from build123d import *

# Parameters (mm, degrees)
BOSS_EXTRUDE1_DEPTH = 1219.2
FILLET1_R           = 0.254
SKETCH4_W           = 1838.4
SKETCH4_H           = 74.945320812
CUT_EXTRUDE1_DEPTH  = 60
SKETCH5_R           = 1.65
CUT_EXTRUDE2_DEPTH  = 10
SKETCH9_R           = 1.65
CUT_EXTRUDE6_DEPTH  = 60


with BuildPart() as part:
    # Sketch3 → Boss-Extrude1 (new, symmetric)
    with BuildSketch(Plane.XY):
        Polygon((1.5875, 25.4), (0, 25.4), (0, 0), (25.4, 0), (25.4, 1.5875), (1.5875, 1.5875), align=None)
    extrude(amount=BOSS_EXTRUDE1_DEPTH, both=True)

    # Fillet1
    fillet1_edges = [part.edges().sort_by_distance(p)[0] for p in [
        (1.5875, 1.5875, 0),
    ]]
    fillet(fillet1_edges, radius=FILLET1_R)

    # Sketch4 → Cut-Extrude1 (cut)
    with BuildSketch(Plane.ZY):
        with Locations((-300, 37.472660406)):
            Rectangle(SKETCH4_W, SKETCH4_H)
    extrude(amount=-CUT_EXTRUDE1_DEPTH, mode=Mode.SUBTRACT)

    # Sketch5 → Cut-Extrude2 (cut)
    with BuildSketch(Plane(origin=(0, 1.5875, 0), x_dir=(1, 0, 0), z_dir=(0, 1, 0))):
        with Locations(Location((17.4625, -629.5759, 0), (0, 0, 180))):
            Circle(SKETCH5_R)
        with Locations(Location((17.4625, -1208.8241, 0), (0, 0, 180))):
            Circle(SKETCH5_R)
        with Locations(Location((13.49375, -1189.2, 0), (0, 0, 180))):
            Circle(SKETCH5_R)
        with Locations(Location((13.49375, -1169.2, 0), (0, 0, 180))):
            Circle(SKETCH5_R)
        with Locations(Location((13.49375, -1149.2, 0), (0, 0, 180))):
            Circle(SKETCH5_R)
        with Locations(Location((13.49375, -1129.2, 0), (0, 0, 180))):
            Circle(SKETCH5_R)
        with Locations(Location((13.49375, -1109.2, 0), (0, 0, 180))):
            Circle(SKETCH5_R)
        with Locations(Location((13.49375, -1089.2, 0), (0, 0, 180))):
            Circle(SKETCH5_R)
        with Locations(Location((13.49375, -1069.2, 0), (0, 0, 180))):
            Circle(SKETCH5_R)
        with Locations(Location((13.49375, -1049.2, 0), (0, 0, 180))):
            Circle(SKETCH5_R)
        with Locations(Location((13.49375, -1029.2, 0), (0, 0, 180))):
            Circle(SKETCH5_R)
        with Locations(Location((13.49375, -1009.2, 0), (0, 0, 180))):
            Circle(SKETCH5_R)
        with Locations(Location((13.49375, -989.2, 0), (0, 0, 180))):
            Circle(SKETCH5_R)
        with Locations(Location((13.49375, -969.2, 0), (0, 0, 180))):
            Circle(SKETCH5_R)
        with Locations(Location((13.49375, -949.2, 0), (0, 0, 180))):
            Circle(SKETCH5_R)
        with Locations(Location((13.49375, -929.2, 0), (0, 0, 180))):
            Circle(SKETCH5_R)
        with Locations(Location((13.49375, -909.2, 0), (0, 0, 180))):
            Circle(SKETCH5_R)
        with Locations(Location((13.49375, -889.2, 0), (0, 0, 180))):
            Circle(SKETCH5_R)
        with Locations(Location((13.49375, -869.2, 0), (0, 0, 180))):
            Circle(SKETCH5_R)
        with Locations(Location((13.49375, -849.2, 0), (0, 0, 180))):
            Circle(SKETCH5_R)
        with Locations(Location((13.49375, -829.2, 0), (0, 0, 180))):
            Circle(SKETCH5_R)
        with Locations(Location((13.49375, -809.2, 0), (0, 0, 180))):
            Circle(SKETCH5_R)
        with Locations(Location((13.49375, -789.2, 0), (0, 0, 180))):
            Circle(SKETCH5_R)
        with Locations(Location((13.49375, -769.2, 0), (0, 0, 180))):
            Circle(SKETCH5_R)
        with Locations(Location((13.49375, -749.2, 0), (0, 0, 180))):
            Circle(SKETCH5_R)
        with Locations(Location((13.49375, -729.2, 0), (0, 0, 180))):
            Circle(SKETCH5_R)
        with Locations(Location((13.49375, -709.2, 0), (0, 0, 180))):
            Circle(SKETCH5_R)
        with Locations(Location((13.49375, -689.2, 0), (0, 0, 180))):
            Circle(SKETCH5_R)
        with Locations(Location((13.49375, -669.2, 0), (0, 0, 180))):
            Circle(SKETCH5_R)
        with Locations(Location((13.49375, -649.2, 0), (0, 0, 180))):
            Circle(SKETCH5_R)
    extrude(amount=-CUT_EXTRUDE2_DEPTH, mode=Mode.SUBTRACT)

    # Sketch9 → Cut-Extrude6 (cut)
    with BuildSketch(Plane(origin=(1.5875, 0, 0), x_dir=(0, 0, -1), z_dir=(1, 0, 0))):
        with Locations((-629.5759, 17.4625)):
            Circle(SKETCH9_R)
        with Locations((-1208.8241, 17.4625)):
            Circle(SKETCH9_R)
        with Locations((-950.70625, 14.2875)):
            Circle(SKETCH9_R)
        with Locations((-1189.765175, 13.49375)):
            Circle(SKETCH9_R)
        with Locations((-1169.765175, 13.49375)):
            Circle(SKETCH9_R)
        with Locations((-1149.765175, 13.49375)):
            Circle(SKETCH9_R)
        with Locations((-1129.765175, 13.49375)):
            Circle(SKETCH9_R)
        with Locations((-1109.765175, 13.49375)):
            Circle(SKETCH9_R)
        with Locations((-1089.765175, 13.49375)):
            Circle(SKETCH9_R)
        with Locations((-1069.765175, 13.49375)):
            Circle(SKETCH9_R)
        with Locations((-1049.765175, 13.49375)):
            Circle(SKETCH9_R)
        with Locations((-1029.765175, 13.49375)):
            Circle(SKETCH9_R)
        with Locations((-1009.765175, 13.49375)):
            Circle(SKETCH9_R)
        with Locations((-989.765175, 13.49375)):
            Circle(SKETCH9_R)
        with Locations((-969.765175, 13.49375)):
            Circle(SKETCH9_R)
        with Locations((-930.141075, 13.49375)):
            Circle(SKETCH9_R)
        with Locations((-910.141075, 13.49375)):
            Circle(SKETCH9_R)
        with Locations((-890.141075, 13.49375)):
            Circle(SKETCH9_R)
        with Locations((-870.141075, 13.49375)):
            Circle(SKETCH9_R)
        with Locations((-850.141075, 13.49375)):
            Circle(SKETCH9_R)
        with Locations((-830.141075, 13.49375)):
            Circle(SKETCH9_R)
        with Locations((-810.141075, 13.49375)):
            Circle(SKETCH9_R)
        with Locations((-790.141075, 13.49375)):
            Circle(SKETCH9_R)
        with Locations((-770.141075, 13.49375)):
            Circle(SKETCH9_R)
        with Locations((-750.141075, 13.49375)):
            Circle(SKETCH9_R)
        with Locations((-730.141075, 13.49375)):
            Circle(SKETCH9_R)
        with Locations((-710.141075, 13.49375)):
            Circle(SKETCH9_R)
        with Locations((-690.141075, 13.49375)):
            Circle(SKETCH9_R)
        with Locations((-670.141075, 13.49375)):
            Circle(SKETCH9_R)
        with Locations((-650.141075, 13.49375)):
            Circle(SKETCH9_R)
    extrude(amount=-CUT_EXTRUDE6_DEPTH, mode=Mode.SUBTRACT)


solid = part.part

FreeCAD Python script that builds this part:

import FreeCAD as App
import Part
import Sketcher
Q = App.Units.Quantity


def edges_at(feature, points):
    """Names of the edges that pass closest to the given points."""
    edges = feature.Shape.Edges
    near = lambda p: min(range(len(edges)), key=lambda i: edges[i].distToShape(Part.Vertex(*p))[0])
    return sorted({f"Edge{near(p) + 1}" for p in points})


def add_polygon(sketch, points):
    """Adds a closed chain of lines whose ends are joined by coincident constraints."""
    first, n = sketch.GeometryCount, len(points)
    for a, b in zip(points, points[1:] + points[:1]):
        sketch.addGeometry(Part.LineSegment(App.Vector(*a, 0), App.Vector(*b, 0)), False)
    for i in range(n):
        sketch.addConstraint(Sketcher.Constraint("Coincident", first + i, 2, first + (i + 1) % n, 1))

doc = App.newDocument("Part")
body = doc.addObject("PartDesign::Body", "Body")

# Sketch on XY plane
sketch1 = body.newObject("Sketcher::SketchObject", "Sketch")
sketch1.AttachmentSupport = (doc.getObject("XY_Plane"), [""])
sketch1.MapMode = "FlatFace"
add_polygon(sketch1, [(1.6, 25.4), (0, 25.4), (0, 0), (25.4, 0), (25.4, 1.6), (1.6, 1.6)])  # lines 0-5
sketch1.addConstraint([
    Sketcher.Constraint("Horizontal", 0),
    Sketcher.Constraint("Vertical", 1),
    Sketcher.Constraint("Horizontal", 2),
    Sketcher.Constraint("Vertical", 3),
    Sketcher.Constraint("Horizontal", 4),
    Sketcher.Constraint("Vertical", 5),
    Sketcher.Constraint("Coincident", 1, 2, -1, 1),
    Sketcher.Constraint("Equal", 2, 1),
    Sketcher.Constraint("Equal", 0, 3),
    Sketcher.Constraint("DistanceX", 2, 1, 2, 2, Q("1 in")),
    Sketcher.Constraint("DistanceX", 0, 2, 0, 1, Q("0.0625 in")),
])
pad1 = body.newObject("PartDesign::Pad", "Pad")
pad1.Profile = sketch1
pad1.Length = Q("96 in")
pad1.Midplane = True
doc.recompute()

fillet = body.newObject("PartDesign::Fillet", "Fillet")
fillet.Base = (pad1, edges_at(pad1, [(1.587, 1.587, 0)]))
fillet.Radius = Q("0.01 in")

# Sketch on YZ plane
sketch2 = body.newObject("Sketcher::SketchObject", "Sketch001")
sketch2.AttachmentSupport = (doc.getObject("YZ_Plane"), [""])
sketch2.MapMode = "FlatFace"
add_polygon(sketch2, [(75, -1219), (0, -1219), (0, 619), (75, 619)])  # lines 0-3
sketch2.addConstraint([
    Sketcher.Constraint("Horizontal", 0),
    Sketcher.Constraint("Vertical", 1),
    Sketcher.Constraint("Horizontal", 2),
    Sketcher.Constraint("Vertical", 3),
    Sketcher.Constraint("PointOnObject", 0, 2, -2),
    Sketcher.Constraint("DistanceY", 0, 2, -1, 1, Q("48 in")),
    Sketcher.Constraint("DistanceY", 1, 1, 1, 2, Q("1838.4 mm")),
    Sketcher.Constraint("DistanceX", 0, 2, 0, 1, Q("74.945321 mm")),
])
pocket1 = body.newObject("PartDesign::Pocket", "Pocket")
pocket1.Profile = sketch2
pocket1.Length = 60
pocket1.Reversed = True

# Sketch on XZ plane
sketch3 = body.newObject("Sketcher::SketchObject", "Sketch002")
sketch3.AttachmentSupport = (doc.getObject("XZ_Plane"), [""])
sketch3.MapMode = "FlatFace"
sketch3.AttachmentOffset = App.Placement(App.Vector(0, 0, -0.0625 * 25.4), App.Rotation())
sketch3.addGeometry([
    Part.Circle(App.Vector(17.5, 629.6, 0), App.Vector(0, 0, 1), 1.6),  # 0
    Part.Circle(App.Vector(17.5, 1208.8, 0), App.Vector(0, 0, 1), 1.6),  # 1
    Part.Circle(App.Vector(13.5, 1189.2, 0), App.Vector(0, 0, 1), 1.6),  # 2
    Part.Circle(App.Vector(13.5, 1169.2, 0), App.Vector(0, 0, 1), 1.6),  # 3
    Part.Circle(App.Vector(13.5, 1149.2, 0), App.Vector(0, 0, 1), 1.6),  # 4
    Part.Circle(App.Vector(13.5, 1129.2, 0), App.Vector(0, 0, 1), 1.6),  # 5
    Part.Circle(App.Vector(13.5, 1109.2, 0), App.Vector(0, 0, 1), 1.6),  # 6
    Part.Circle(App.Vector(13.5, 1089.2, 0), App.Vector(0, 0, 1), 1.6),  # 7
    Part.Circle(App.Vector(13.5, 1069.2, 0), App.Vector(0, 0, 1), 1.6),  # 8
    Part.Circle(App.Vector(13.5, 1049.2, 0), App.Vector(0, 0, 1), 1.6),  # 9
    Part.Circle(App.Vector(13.5, 1029.2, 0), App.Vector(0, 0, 1), 1.6),  # 10
    Part.Circle(App.Vector(13.5, 1009.2, 0), App.Vector(0, 0, 1), 1.6),  # 11
    Part.Circle(App.Vector(13.5, 989.2, 0), App.Vector(0, 0, 1), 1.6),  # 12
    Part.Circle(App.Vector(13.5, 969.2, 0), App.Vector(0, 0, 1), 1.6),  # 13
    Part.Circle(App.Vector(13.5, 949.2, 0), App.Vector(0, 0, 1), 1.6),  # 14
    Part.Circle(App.Vector(13.5, 929.2, 0), App.Vector(0, 0, 1), 1.6),  # 15
    Part.Circle(App.Vector(13.5, 909.2, 0), App.Vector(0, 0, 1), 1.6),  # 16
    Part.Circle(App.Vector(13.5, 889.2, 0), App.Vector(0, 0, 1), 1.6),  # 17
    Part.Circle(App.Vector(13.5, 869.2, 0), App.Vector(0, 0, 1), 1.6),  # 18
    Part.Circle(App.Vector(13.5, 849.2, 0), App.Vector(0, 0, 1), 1.6),  # 19
    Part.Circle(App.Vector(13.5, 829.2, 0), App.Vector(0, 0, 1), 1.6),  # 20
    Part.Circle(App.Vector(13.5, 809.2, 0), App.Vector(0, 0, 1), 1.6),  # 21
    Part.Circle(App.Vector(13.5, 789.2, 0), App.Vector(0, 0, 1), 1.6),  # 22
    Part.Circle(App.Vector(13.5, 769.2, 0), App.Vector(0, 0, 1), 1.6),  # 23
    Part.Circle(App.Vector(13.5, 749.2, 0), App.Vector(0, 0, 1), 1.6),  # 24
    Part.Circle(App.Vector(13.5, 729.2, 0), App.Vector(0, 0, 1), 1.6),  # 25
    Part.Circle(App.Vector(13.5, 709.2, 0), App.Vector(0, 0, 1), 1.6),  # 26
    Part.Circle(App.Vector(13.5, 689.2, 0), App.Vector(0, 0, 1), 1.6),  # 27
    Part.Circle(App.Vector(13.5, 669.2, 0), App.Vector(0, 0, 1), 1.6),  # 28
    Part.Circle(App.Vector(13.5, 649.2, 0), App.Vector(0, 0, 1), 1.6),  # 29
], False)
sketch3.addConstraint([
    Sketcher.Constraint("Equal", 0, 1),
    Sketcher.Constraint("Equal", 1, 2),
    Sketcher.Constraint("Equal", 2, 3),
    Sketcher.Constraint("Equal", 3, 4),
    Sketcher.Constraint("Equal", 4, 5),
    Sketcher.Constraint("Equal", 5, 6),
    Sketcher.Constraint("Equal", 6, 7),
    Sketcher.Constraint("Equal", 7, 8),
    Sketcher.Constraint("Equal", 8, 9),
    Sketcher.Constraint("Equal", 9, 10),
    Sketcher.Constraint("Equal", 10, 11),
    Sketcher.Constraint("Equal", 11, 12),
    Sketcher.Constraint("Equal", 12, 13),
    Sketcher.Constraint("Equal", 13, 14),
    Sketcher.Constraint("Equal", 14, 15),
    Sketcher.Constraint("Equal", 15, 16),
    Sketcher.Constraint("Equal", 16, 17),
    Sketcher.Constraint("Equal", 17, 18),
    Sketcher.Constraint("Equal", 18, 19),
    Sketcher.Constraint("Equal", 19, 20),
    Sketcher.Constraint("Equal", 20, 21),
    Sketcher.Constraint("Equal", 21, 22),
    Sketcher.Constraint("Equal", 22, 23),
    Sketcher.Constraint("Equal", 23, 24),
    Sketcher.Constraint("Equal", 24, 25),
    Sketcher.Constraint("Equal", 25, 26),
    Sketcher.Constraint("Equal", 26, 27),
    Sketcher.Constraint("Equal", 27, 28),
    Sketcher.Constraint("Equal", 28, 29),
    Sketcher.Constraint("Vertical", 0, 3, 1, 3),
    Sketcher.Constraint("Vertical", 2, 3, 3, 3),
    Sketcher.Constraint("Vertical", 3, 3, 4, 3),
    Sketcher.Constraint("Vertical", 4, 3, 5, 3),
    Sketcher.Constraint("Vertical", 5, 3, 6, 3),
    Sketcher.Constraint("Vertical", 6, 3, 7, 3),
    Sketcher.Constraint("Vertical", 7, 3, 8, 3),
    Sketcher.Constraint("Vertical", 8, 3, 9, 3),
    Sketcher.Constraint("Vertical", 9, 3, 10, 3),
    Sketcher.Constraint("Vertical", 10, 3, 11, 3),
    Sketcher.Constraint("Vertical", 11, 3, 12, 3),
    Sketcher.Constraint("Vertical", 12, 3, 13, 3),
    Sketcher.Constraint("Vertical", 13, 3, 14, 3),
    Sketcher.Constraint("Vertical", 14, 3, 15, 3),
    Sketcher.Constraint("Vertical", 15, 3, 16, 3),
    Sketcher.Constraint("Vertical", 16, 3, 17, 3),
    Sketcher.Constraint("Vertical", 17, 3, 18, 3),
    Sketcher.Constraint("Vertical", 18, 3, 19, 3),
    Sketcher.Constraint("Vertical", 19, 3, 20, 3),
    Sketcher.Constraint("Vertical", 20, 3, 21, 3),
    Sketcher.Constraint("Vertical", 21, 3, 22, 3),
    Sketcher.Constraint("Vertical", 22, 3, 23, 3),
    Sketcher.Constraint("Vertical", 23, 3, 24, 3),
    Sketcher.Constraint("Vertical", 24, 3, 25, 3),
    Sketcher.Constraint("Vertical", 25, 3, 26, 3),
    Sketcher.Constraint("Vertical", 26, 3, 27, 3),
    Sketcher.Constraint("Vertical", 27, 3, 28, 3),
    Sketcher.Constraint("Vertical", 28, 3, 29, 3),
    Sketcher.Constraint("Diameter", 0, Q("3.3 mm")),
    Sketcher.Constraint("DistanceX", -1, 1, 0, 3, Q("0.6875 in")),
    Sketcher.Constraint("DistanceX", -1, 1, 2, 3, Q("0.53125 in")),
    Sketcher.Constraint("DistanceY", -1, 1, 1, 3, Q("47.5915 in")),
    Sketcher.Constraint("DistanceY", -1, 1, 0, 3, Q("629.5759 mm")),
    Sketcher.Constraint("DistanceY", -1, 1, 2, 3, Q("1189.2 mm")),
    Sketcher.Constraint("DistanceY", -1, 1, 3, 3, Q("1169.2 mm")),
    Sketcher.Constraint("DistanceY", -1, 1, 4, 3, Q("1149.2 mm")),
    Sketcher.Constraint("DistanceY", -1, 1, 5, 3, Q("1129.2 mm")),
    Sketcher.Constraint("DistanceY", -1, 1, 6, 3, Q("1109.2 mm")),
    Sketcher.Constraint("DistanceY", -1, 1, 7, 3, Q("1089.2 mm")),
    Sketcher.Constraint("DistanceY", -1, 1, 8, 3, Q("1069.2 mm")),
    Sketcher.Constraint("DistanceY", -1, 1, 9, 3, Q("1049.2 mm")),
    Sketcher.Constraint("DistanceY", -1, 1, 10, 3, Q("1029.2 mm")),
    Sketcher.Constraint("DistanceY", -1, 1, 11, 3, Q("1009.2 mm")),
    Sketcher.Constraint("DistanceY", -1, 1, 12, 3, Q("989.2 mm")),
    Sketcher.Constraint("DistanceY", -1, 1, 13, 3, Q("969.2 mm")),
    Sketcher.Constraint("DistanceY", -1, 1, 14, 3, Q("949.2 mm")),
    Sketcher.Constraint("DistanceY", -1, 1, 15, 3, Q("929.2 mm")),
    Sketcher.Constraint("DistanceY", -1, 1, 16, 3, Q("909.2 mm")),
    Sketcher.Constraint("DistanceY", -1, 1, 17, 3, Q("889.2 mm")),
    Sketcher.Constraint("DistanceY", -1, 1, 18, 3, Q("869.2 mm")),
    Sketcher.Constraint("DistanceY", -1, 1, 19, 3, Q("849.2 mm")),
    Sketcher.Constraint("DistanceY", -1, 1, 20, 3, Q("829.2 mm")),
    Sketcher.Constraint("DistanceY", -1, 1, 21, 3, Q("809.2 mm")),
    Sketcher.Constraint("DistanceY", -1, 1, 22, 3, Q("789.2 mm")),
    Sketcher.Constraint("DistanceY", -1, 1, 23, 3, Q("769.2 mm")),
    Sketcher.Constraint("DistanceY", -1, 1, 24, 3, Q("749.2 mm")),
    Sketcher.Constraint("DistanceY", -1, 1, 25, 3, Q("729.2 mm")),
    Sketcher.Constraint("DistanceY", -1, 1, 26, 3, Q("709.2 mm")),
    Sketcher.Constraint("DistanceY", -1, 1, 27, 3, Q("689.2 mm")),
    Sketcher.Constraint("DistanceY", -1, 1, 28, 3, Q("669.2 mm")),
    Sketcher.Constraint("DistanceY", -1, 1, 29, 3, Q("649.2 mm")),
])
pocket2 = body.newObject("PartDesign::Pocket", "Pocket001")
pocket2.Profile = sketch3
pocket2.Length = 10
pocket2.Reversed = True

# Sketch on YZ plane
sketch4 = body.newObject("Sketcher::SketchObject", "Sketch003")
sketch4.AttachmentSupport = (doc.getObject("YZ_Plane"), [""])
sketch4.MapMode = "FlatFace"
sketch4.AttachmentOffset = App.Placement(App.Vector(0, 0, 0.0625 * 25.4), App.Rotation())
sketch4.addGeometry([
    Part.Circle(App.Vector(17.5, 629.6, 0), App.Vector(0, 0, 1), 1.6),  # 0
    Part.Circle(App.Vector(17.5, 1208.8, 0), App.Vector(0, 0, 1), 1.6),  # 1
    Part.Circle(App.Vector(14.3, 950.7, 0), App.Vector(0, 0, 1), 1.6),  # 2
    Part.Circle(App.Vector(13.5, 1189.8, 0), App.Vector(0, 0, 1), 1.6),  # 3
    Part.Circle(App.Vector(13.5, 1169.8, 0), App.Vector(0, 0, 1), 1.6),  # 4
    Part.Circle(App.Vector(13.5, 1149.8, 0), App.Vector(0, 0, 1), 1.6),  # 5
    Part.Circle(App.Vector(13.5, 1129.8, 0), App.Vector(0, 0, 1), 1.6),  # 6
    Part.Circle(App.Vector(13.5, 1109.8, 0), App.Vector(0, 0, 1), 1.6),  # 7
    Part.Circle(App.Vector(13.5, 1089.8, 0), App.Vector(0, 0, 1), 1.6),  # 8
    Part.Circle(App.Vector(13.5, 1069.8, 0), App.Vector(0, 0, 1), 1.6),  # 9
    Part.Circle(App.Vector(13.5, 1049.8, 0), App.Vector(0, 0, 1), 1.6),  # 10
    Part.Circle(App.Vector(13.5, 1029.8, 0), App.Vector(0, 0, 1), 1.6),  # 11
    Part.Circle(App.Vector(13.5, 1009.8, 0), App.Vector(0, 0, 1), 1.6),  # 12
    Part.Circle(App.Vector(13.5, 989.8, 0), App.Vector(0, 0, 1), 1.6),  # 13
    Part.Circle(App.Vector(13.5, 969.8, 0), App.Vector(0, 0, 1), 1.6),  # 14
    Part.Circle(App.Vector(13.5, 930.1, 0), App.Vector(0, 0, 1), 1.6),  # 15
    Part.Circle(App.Vector(13.5, 910.1, 0), App.Vector(0, 0, 1), 1.6),  # 16
    Part.Circle(App.Vector(13.5, 890.1, 0), App.Vector(0, 0, 1), 1.6),  # 17
    Part.Circle(App.Vector(13.5, 870.1, 0), App.Vector(0, 0, 1), 1.6),  # 18
    Part.Circle(App.Vector(13.5, 850.1, 0), App.Vector(0, 0, 1), 1.6),  # 19
    Part.Circle(App.Vector(13.5, 830.1, 0), App.Vector(0, 0, 1), 1.6),  # 20
    Part.Circle(App.Vector(13.5, 810.1, 0), App.Vector(0, 0, 1), 1.6),  # 21
    Part.Circle(App.Vector(13.5, 790.1, 0), App.Vector(0, 0, 1), 1.6),  # 22
    Part.Circle(App.Vector(13.5, 770.1, 0), App.Vector(0, 0, 1), 1.6),  # 23
    Part.Circle(App.Vector(13.5, 750.1, 0), App.Vector(0, 0, 1), 1.6),  # 24
    Part.Circle(App.Vector(13.5, 730.1, 0), App.Vector(0, 0, 1), 1.6),  # 25
    Part.Circle(App.Vector(13.5, 710.1, 0), App.Vector(0, 0, 1), 1.6),  # 26
    Part.Circle(App.Vector(13.5, 690.1, 0), App.Vector(0, 0, 1), 1.6),  # 27
    Part.Circle(App.Vector(13.5, 670.1, 0), App.Vector(0, 0, 1), 1.6),  # 28
    Part.Circle(App.Vector(13.5, 650.1, 0), App.Vector(0, 0, 1), 1.6),  # 29
], False)
sketch4.addConstraint([
    Sketcher.Constraint("Equal", 0, 1),
    Sketcher.Constraint("Equal", 1, 2),
    Sketcher.Constraint("Equal", 2, 3),
    Sketcher.Constraint("Equal", 3, 4),
    Sketcher.Constraint("Equal", 4, 5),
    Sketcher.Constraint("Equal", 5, 6),
    Sketcher.Constraint("Equal", 6, 7),
    Sketcher.Constraint("Equal", 7, 8),
    Sketcher.Constraint("Equal", 8, 9),
    Sketcher.Constraint("Equal", 9, 10),
    Sketcher.Constraint("Equal", 10, 11),
    Sketcher.Constraint("Equal", 11, 12),
    Sketcher.Constraint("Equal", 12, 13),
    Sketcher.Constraint("Equal", 13, 14),
    Sketcher.Constraint("Equal", 14, 15),
    Sketcher.Constraint("Equal", 15, 16),
    Sketcher.Constraint("Equal", 16, 17),
    Sketcher.Constraint("Equal", 17, 18),
    Sketcher.Constraint("Equal", 18, 19),
    Sketcher.Constraint("Equal", 19, 20),
    Sketcher.Constraint("Equal", 20, 21),
    Sketcher.Constraint("Equal", 21, 22),
    Sketcher.Constraint("Equal", 22, 23),
    Sketcher.Constraint("Equal", 23, 24),
    Sketcher.Constraint("Equal", 24, 25),
    Sketcher.Constraint("Equal", 25, 26),
    Sketcher.Constraint("Equal", 26, 27),
    Sketcher.Constraint("Equal", 27, 28),
    Sketcher.Constraint("Equal", 28, 29),
    Sketcher.Constraint("Vertical", 0, 3, 1, 3),
    Sketcher.Constraint("Vertical", 3, 3, 4, 3),
    Sketcher.Constraint("Vertical", 4, 3, 5, 3),
    Sketcher.Constraint("Vertical", 5, 3, 6, 3),
    Sketcher.Constraint("Vertical", 6, 3, 7, 3),
    Sketcher.Constraint("Vertical", 7, 3, 8, 3),
    Sketcher.Constraint("Vertical", 8, 3, 9, 3),
    Sketcher.Constraint("Vertical", 9, 3, 10, 3),
    Sketcher.Constraint("Vertical", 10, 3, 11, 3),
    Sketcher.Constraint("Vertical", 11, 3, 12, 3),
    Sketcher.Constraint("Vertical", 12, 3, 13, 3),
    Sketcher.Constraint("Vertical", 13, 3, 14, 3),
    Sketcher.Constraint("Vertical", 14, 3, 15, 3),
    Sketcher.Constraint("Vertical", 15, 3, 16, 3),
    Sketcher.Constraint("Vertical", 16, 3, 17, 3),
    Sketcher.Constraint("Vertical", 17, 3, 18, 3),
    Sketcher.Constraint("Vertical", 18, 3, 19, 3),
    Sketcher.Constraint("Vertical", 19, 3, 20, 3),
    Sketcher.Constraint("Vertical", 20, 3, 21, 3),
    Sketcher.Constraint("Vertical", 21, 3, 22, 3),
    Sketcher.Constraint("Vertical", 22, 3, 23, 3),
    Sketcher.Constraint("Vertical", 23, 3, 24, 3),
    Sketcher.Constraint("Vertical", 24, 3, 25, 3),
    Sketcher.Constraint("Vertical", 25, 3, 26, 3),
    Sketcher.Constraint("Vertical", 26, 3, 27, 3),
    Sketcher.Constraint("Vertical", 27, 3, 28, 3),
    Sketcher.Constraint("Vertical", 28, 3, 29, 3),
    Sketcher.Constraint("Diameter", 0, Q("3.3 mm")),
    Sketcher.Constraint("DistanceX", -1, 1, 0, 3, Q("0.6875 in")),
    Sketcher.Constraint("DistanceX", -1, 1, 2, 3, Q("0.5625 in")),
    Sketcher.Constraint("DistanceX", -1, 1, 3, 3, Q("0.53125 in")),
    Sketcher.Constraint("DistanceY", -1, 1, 1, 3, Q("47.5915 in")),
    Sketcher.Constraint("DistanceY", -1, 1, 0, 3, Q("629.5759 mm")),
    Sketcher.Constraint("DistanceY", 4, 3, 3, 3, Q("20 mm")),
    Sketcher.Constraint("DistanceY", 5, 3, 4, 3, Q("20 mm")),
    Sketcher.Constraint("DistanceY", 6, 3, 5, 3, Q("20 mm")),
    Sketcher.Constraint("DistanceY", 7, 3, 6, 3, Q("20 mm")),
    Sketcher.Constraint("DistanceY", 8, 3, 7, 3, Q("20 mm")),
    Sketcher.Constraint("DistanceY", 9, 3, 8, 3, Q("20 mm")),
    Sketcher.Constraint("DistanceY", 10, 3, 9, 3, Q("20 mm")),
    Sketcher.Constraint("DistanceY", 11, 3, 10, 3, Q("20 mm")),
    Sketcher.Constraint("DistanceY", 12, 3, 11, 3, Q("20 mm")),
    Sketcher.Constraint("DistanceY", 13, 3, 12, 3, Q("20 mm")),
    Sketcher.Constraint("DistanceY", 14, 3, 13, 3, Q("20 mm")),
    Sketcher.Constraint("DistanceY", 15, 3, 14, 3, Q("39.6241 mm")),
    Sketcher.Constraint("DistanceY", 16, 3, 15, 3, Q("20 mm")),
    Sketcher.Constraint("DistanceY", 17, 3, 16, 3, Q("20 mm")),
    Sketcher.Constraint("DistanceY", 18, 3, 17, 3, Q("20 mm")),
    Sketcher.Constraint("DistanceY", 19, 3, 18, 3, Q("20 mm")),
    Sketcher.Constraint("DistanceY", 20, 3, 19, 3, Q("20 mm")),
    Sketcher.Constraint("DistanceY", 21, 3, 20, 3, Q("20 mm")),
    Sketcher.Constraint("DistanceY", 22, 3, 21, 3, Q("20 mm")),
    Sketcher.Constraint("DistanceY", 23, 3, 22, 3, Q("20 mm")),
    Sketcher.Constraint("DistanceY", 24, 3, 23, 3, Q("20 mm")),
    Sketcher.Constraint("DistanceY", 25, 3, 24, 3, Q("20 mm")),
    Sketcher.Constraint("DistanceY", 26, 3, 25, 3, Q("20 mm")),
    Sketcher.Constraint("DistanceY", 27, 3, 26, 3, Q("20 mm")),
    Sketcher.Constraint("DistanceY", 28, 3, 27, 3, Q("20 mm")),
    Sketcher.Constraint("DistanceY", 29, 3, 28, 3, Q("20 mm")),
    Sketcher.Constraint("DistanceY", -1, 1, 2, 3, Q("950.70625 mm")),
    Sketcher.Constraint("DistanceY", -1, 1, 3, 3, Q("1189.765175 mm")),
])
pocket3 = body.newObject("PartDesign::Pocket", "Pocket002")
pocket3.Profile = sketch4
pocket3.Length = 60

doc.recompute()
